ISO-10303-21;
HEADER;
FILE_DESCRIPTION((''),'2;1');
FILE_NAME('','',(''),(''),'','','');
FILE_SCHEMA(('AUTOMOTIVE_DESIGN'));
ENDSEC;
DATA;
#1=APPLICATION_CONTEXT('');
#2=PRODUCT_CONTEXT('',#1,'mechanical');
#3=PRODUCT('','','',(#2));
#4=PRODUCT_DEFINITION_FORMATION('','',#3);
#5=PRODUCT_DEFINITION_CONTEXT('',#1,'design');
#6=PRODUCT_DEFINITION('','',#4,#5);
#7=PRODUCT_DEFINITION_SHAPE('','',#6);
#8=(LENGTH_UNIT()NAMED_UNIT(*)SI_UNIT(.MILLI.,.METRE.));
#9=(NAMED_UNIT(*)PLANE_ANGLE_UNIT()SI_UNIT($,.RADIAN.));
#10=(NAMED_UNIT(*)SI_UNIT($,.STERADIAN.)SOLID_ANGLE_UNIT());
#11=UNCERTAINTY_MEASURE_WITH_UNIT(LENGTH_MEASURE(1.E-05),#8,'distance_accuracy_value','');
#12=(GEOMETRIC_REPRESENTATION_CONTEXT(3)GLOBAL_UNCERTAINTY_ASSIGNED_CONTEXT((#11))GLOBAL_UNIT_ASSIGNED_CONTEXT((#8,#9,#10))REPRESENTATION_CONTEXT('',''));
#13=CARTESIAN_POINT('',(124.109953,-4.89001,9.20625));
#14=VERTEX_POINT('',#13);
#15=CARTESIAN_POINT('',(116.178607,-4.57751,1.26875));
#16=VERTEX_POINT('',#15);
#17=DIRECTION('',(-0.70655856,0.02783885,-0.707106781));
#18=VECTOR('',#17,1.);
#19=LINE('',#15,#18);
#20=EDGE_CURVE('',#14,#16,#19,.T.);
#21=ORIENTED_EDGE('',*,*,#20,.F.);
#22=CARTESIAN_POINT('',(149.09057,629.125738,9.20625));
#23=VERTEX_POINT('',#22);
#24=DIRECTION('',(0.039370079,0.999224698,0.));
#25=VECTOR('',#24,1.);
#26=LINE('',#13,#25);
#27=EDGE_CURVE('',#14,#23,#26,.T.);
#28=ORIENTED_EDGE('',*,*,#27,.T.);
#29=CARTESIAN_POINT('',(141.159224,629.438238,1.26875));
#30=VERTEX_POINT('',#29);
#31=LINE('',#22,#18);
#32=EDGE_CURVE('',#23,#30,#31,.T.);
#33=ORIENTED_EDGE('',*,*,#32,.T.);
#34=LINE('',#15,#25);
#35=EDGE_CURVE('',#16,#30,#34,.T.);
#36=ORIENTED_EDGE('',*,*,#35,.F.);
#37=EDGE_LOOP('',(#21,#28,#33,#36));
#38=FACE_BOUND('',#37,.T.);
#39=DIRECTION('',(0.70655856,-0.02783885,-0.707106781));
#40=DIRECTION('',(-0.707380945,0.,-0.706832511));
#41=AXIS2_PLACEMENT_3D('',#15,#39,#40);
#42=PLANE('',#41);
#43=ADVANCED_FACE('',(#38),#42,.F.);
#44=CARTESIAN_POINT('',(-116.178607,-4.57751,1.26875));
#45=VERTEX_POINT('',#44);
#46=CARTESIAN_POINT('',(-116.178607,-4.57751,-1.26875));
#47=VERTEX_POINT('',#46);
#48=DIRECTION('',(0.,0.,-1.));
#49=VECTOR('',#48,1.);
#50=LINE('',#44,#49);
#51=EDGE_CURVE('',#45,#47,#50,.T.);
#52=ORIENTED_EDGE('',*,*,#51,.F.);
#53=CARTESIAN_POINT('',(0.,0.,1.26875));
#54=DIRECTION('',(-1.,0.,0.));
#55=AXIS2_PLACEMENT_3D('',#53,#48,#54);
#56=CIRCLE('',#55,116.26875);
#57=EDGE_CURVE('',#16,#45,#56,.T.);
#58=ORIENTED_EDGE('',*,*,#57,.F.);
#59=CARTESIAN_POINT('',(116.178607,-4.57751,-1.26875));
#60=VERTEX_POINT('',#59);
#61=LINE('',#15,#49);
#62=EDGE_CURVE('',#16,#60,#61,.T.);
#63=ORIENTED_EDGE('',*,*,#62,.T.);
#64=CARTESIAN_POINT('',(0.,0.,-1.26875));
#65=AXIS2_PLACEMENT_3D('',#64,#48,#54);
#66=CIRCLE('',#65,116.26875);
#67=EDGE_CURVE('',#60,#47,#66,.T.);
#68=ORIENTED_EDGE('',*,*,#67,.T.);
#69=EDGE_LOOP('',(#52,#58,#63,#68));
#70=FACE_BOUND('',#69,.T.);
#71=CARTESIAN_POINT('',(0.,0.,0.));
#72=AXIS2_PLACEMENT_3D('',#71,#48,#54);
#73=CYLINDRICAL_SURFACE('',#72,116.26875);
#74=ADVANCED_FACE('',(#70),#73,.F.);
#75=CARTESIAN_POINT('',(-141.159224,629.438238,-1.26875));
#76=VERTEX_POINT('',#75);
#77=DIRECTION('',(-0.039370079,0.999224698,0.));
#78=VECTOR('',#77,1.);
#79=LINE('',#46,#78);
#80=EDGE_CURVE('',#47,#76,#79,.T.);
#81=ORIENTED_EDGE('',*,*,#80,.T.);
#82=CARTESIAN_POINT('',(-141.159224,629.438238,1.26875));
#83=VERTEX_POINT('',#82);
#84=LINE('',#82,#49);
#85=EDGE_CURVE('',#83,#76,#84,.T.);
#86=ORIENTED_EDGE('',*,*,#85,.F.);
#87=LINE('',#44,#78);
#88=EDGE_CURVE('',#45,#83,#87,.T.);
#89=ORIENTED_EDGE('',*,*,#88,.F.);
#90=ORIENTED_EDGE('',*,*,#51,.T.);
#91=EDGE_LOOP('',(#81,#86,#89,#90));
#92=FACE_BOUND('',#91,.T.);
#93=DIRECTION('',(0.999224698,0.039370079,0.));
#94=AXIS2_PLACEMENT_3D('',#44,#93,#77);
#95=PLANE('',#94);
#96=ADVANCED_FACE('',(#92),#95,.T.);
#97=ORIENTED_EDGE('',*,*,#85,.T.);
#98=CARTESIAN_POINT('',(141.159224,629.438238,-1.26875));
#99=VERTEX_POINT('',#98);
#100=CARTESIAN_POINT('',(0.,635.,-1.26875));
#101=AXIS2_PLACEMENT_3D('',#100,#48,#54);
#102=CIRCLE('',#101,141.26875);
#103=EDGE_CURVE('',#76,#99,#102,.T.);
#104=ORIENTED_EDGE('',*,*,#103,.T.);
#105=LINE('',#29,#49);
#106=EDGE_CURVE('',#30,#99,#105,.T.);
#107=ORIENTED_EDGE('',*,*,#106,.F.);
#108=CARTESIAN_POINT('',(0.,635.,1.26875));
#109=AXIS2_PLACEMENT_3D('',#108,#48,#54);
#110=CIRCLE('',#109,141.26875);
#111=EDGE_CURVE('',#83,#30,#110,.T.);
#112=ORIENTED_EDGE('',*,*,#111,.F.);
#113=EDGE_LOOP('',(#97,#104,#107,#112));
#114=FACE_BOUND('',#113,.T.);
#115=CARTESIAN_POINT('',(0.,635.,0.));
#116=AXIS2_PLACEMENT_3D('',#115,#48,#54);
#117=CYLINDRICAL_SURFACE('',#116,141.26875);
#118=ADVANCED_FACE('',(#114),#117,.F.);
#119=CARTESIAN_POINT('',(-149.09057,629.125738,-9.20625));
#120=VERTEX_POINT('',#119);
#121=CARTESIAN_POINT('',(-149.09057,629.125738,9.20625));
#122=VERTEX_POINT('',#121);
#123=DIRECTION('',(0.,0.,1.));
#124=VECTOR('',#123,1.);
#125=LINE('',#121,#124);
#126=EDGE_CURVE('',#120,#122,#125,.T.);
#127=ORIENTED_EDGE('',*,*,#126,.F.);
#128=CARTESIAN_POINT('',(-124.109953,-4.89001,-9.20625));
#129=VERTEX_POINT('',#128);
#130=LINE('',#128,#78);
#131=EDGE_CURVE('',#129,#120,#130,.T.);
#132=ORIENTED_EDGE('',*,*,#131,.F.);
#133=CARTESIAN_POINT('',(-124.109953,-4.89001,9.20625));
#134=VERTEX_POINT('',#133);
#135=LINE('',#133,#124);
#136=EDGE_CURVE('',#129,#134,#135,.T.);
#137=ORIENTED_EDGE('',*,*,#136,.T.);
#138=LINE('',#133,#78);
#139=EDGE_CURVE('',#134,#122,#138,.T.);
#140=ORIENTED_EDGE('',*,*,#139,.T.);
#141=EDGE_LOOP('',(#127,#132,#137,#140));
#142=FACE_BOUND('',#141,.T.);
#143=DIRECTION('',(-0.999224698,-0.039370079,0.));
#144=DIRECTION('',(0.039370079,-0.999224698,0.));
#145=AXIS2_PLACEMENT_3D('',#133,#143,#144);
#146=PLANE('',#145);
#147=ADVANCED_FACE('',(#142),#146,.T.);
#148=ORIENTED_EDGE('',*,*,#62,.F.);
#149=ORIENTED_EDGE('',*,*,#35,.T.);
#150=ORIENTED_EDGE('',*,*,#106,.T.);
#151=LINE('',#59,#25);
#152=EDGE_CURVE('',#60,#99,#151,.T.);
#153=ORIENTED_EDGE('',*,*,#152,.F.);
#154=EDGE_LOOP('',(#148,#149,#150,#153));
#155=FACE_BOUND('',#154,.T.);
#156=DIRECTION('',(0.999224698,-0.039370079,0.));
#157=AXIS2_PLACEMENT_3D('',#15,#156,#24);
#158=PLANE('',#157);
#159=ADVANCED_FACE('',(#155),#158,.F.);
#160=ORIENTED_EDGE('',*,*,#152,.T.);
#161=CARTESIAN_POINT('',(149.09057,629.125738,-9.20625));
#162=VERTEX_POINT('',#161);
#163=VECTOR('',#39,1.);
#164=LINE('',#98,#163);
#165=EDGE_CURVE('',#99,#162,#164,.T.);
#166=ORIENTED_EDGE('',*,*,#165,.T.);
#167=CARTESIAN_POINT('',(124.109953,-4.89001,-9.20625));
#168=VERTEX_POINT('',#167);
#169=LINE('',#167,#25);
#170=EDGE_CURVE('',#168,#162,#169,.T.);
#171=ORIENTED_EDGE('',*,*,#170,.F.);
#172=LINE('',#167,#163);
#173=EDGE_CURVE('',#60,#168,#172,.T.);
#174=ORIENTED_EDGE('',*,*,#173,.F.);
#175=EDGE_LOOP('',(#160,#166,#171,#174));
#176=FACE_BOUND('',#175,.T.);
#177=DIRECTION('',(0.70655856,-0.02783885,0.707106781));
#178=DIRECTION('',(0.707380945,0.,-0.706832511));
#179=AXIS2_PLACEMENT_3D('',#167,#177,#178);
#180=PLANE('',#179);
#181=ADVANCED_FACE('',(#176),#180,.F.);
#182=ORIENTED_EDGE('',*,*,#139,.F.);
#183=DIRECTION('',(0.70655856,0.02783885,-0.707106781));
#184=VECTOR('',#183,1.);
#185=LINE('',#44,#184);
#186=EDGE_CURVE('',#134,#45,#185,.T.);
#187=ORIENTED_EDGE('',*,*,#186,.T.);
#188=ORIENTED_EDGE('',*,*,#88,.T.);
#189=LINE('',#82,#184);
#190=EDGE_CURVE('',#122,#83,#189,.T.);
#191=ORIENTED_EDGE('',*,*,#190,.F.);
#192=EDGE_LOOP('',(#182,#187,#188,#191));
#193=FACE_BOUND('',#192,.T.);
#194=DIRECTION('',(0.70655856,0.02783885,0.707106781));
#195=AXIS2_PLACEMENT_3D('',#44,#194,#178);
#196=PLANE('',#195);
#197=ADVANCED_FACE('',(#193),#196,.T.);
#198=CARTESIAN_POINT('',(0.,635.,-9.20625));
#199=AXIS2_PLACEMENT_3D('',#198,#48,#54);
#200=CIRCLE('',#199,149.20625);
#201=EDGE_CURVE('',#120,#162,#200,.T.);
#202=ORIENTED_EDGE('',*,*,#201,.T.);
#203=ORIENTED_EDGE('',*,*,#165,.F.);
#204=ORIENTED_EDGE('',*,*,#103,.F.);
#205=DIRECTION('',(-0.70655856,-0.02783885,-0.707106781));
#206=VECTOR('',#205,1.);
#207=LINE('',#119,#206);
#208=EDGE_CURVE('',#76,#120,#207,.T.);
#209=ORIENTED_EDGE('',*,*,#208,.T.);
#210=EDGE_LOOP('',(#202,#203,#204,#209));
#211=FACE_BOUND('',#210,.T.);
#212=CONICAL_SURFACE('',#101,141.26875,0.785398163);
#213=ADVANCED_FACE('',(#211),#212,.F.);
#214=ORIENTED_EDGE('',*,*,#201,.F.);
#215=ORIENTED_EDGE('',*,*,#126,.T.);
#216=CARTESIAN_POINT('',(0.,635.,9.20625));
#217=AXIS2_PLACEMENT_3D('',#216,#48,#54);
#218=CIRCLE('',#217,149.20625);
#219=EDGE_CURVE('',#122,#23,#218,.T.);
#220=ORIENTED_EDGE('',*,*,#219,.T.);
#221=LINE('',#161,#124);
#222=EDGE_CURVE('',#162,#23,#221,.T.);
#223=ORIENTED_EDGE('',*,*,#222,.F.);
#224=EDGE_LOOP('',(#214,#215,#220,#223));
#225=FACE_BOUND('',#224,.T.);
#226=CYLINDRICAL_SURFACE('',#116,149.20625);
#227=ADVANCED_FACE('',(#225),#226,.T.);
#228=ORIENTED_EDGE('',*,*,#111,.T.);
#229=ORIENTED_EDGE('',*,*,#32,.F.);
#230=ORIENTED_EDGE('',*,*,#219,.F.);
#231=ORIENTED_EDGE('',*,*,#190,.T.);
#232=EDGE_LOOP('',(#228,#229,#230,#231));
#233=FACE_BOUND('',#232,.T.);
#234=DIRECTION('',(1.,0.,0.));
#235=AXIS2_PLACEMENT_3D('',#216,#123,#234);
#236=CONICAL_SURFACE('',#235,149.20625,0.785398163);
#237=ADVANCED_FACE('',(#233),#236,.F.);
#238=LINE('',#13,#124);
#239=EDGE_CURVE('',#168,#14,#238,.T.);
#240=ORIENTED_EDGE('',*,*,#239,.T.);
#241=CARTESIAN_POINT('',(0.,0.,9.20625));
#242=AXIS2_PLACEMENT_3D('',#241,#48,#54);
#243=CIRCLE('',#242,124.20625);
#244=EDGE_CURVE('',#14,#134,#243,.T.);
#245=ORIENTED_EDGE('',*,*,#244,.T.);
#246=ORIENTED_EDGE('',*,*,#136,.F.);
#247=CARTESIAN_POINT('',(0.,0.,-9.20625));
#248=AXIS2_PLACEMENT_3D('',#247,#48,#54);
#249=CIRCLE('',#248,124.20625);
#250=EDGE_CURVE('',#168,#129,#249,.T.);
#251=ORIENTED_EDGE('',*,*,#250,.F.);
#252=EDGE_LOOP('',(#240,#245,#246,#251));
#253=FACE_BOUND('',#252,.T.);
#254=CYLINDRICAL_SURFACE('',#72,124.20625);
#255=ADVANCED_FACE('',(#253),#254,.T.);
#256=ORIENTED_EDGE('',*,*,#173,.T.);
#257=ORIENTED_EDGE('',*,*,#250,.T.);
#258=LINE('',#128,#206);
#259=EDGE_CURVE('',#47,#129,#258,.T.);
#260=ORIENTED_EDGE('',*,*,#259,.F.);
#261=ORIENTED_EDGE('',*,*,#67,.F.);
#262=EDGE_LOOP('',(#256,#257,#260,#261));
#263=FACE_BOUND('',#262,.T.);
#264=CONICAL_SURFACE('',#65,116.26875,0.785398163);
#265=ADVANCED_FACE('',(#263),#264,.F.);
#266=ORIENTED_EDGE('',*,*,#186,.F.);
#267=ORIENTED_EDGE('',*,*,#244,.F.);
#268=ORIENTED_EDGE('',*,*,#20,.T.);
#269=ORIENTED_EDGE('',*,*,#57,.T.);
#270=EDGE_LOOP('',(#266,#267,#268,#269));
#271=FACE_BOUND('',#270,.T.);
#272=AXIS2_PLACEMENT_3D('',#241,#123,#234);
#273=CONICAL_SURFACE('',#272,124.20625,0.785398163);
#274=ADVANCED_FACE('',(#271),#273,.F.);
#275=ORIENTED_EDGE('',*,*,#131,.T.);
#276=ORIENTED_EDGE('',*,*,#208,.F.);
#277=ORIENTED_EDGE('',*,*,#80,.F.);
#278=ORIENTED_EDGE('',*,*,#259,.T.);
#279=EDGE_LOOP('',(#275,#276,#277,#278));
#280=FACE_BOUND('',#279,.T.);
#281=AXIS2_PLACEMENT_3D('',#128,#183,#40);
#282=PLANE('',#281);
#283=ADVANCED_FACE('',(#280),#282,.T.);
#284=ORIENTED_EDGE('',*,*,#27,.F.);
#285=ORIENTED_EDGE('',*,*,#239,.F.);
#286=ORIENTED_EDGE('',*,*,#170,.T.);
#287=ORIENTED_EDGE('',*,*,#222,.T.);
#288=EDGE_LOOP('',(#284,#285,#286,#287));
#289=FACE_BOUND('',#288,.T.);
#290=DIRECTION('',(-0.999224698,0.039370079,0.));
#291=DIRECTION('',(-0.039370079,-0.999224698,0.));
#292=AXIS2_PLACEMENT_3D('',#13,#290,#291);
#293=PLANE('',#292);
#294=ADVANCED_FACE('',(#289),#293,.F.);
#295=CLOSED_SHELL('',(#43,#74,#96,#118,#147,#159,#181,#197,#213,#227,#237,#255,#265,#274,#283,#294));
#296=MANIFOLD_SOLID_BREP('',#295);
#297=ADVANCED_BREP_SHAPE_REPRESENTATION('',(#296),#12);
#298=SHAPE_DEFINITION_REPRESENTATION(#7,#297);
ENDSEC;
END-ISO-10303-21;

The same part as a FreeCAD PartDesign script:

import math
import FreeCAD as App
import Part
import Sketcher

doc = App.newDocument("Part")
body = doc.addObject("PartDesign::Body", "Body")

# Sketch on an angled plane
sketch1 = body.newObject("Sketcher::SketchObject", "Sketch")
sketch1.Placement = App.Placement(App.Vector(139.891458, 629.488189, 0), App.Rotation(App.Vector(0.999224698, -0.039370079, 0), App.Vector(0, 0, 1), App.Vector(-0.039370079, -0.999224698, 0), "ZXY"))
sketch1.addGeometry([
    Part.LineSegment(App.Vector(9.2, 9.2, 0), App.Vector(1.3, 1.3, 0)),
    Part.LineSegment(App.Vector(1.3, 1.3, 0), App.Vector(1.3, -1.3, 0)),
    Part.LineSegment(App.Vector(1.3, -1.3, 0), App.Vector(9.2, -9.2, 0)),
    Part.LineSegment(App.Vector(9.2, -9.2, 0), App.Vector(9.2, 9.2, 0)),
], False)
sketch1.addConstraint([
    Sketcher.Constraint("Coincident", 0, 2, 1, 1),
    Sketcher.Constraint("Coincident", 1, 2, 2, 1),
    Sketcher.Constraint("Coincident", 2, 2, 3, 1),
    Sketcher.Constraint("Coincident", 3, 2, 0, 1),
    Sketcher.Constraint("Vertical", 1),
    Sketcher.Constraint("Vertical", 3),
    Sketcher.Constraint("Perpendicular", 0, 2),
    Sketcher.Constraint("Equal", 0, 2),
    Sketcher.Constraint("DistanceY", 1, 2, 1, 1, 2.5375),
    Sketcher.Constraint("DistanceY", 3, 1, 3, 2, 18.4125),
    Sketcher.Constraint("DistanceX", -1, 1, 0, 2, 1.26875),
    Sketcher.Constraint("DistanceY", -1, 1, 0, 2, 1.26875),
])

# Sketch on XY plane
sketch2 = body.newObject("Sketcher::SketchObject", "Sketch001")
sketch2.AttachmentSupport = (doc.getObject("XY_Plane"), [""])
sketch2.MapMode = "FlatFace"
sketch2.addGeometry([
    Part.LineSegment(App.Vector(140, 629, 0), App.Vector(115, -5, 0)),
    Part.ArcOfCircle(Part.Circle(App.Vector(0, 0, 0), App.Vector(0, 0, 1), 115), math.radians(-178), math.radians(-2)),
    Part.LineSegment(App.Vector(-115, -5, 0), App.Vector(-140, 629, 0)),
    Part.ArcOfCircle(Part.Circle(App.Vector(0, 635, 0), App.Vector(0, 0, 1), 140), math.radians(-2), math.radians(182)),
], False)
sketch2.addConstraint([
    Sketcher.Constraint("Tangent", 0, 2, 1, 2),
    Sketcher.Constraint("Tangent", 1, 1, 2, 1),
    Sketcher.Constraint("Tangent", 2, 2, 3, 2),
    Sketcher.Constraint("Tangent", 3, 1, 0, 1),
    Sketcher.Constraint("Coincident", 1, 3, -1, 1),
    Sketcher.Constraint("PointOnObject", 3, 3, -2),
    Sketcher.Constraint("Radius", 1, 115.0),
    Sketcher.Constraint("Radius", 3, 140.0),
    Sketcher.Constraint("DistanceY", -1, 1, 3, 3, 635.0),
])
doc.recompute()

additivepipe = body.newObject("PartDesign::AdditivePipe", "AdditivePipe")
additivepipe.Profile = sketch1
additivepipe.Spine = (sketch2, ["Edge1", "Edge2", "Edge3", "Edge4"])

doc.recompute()
